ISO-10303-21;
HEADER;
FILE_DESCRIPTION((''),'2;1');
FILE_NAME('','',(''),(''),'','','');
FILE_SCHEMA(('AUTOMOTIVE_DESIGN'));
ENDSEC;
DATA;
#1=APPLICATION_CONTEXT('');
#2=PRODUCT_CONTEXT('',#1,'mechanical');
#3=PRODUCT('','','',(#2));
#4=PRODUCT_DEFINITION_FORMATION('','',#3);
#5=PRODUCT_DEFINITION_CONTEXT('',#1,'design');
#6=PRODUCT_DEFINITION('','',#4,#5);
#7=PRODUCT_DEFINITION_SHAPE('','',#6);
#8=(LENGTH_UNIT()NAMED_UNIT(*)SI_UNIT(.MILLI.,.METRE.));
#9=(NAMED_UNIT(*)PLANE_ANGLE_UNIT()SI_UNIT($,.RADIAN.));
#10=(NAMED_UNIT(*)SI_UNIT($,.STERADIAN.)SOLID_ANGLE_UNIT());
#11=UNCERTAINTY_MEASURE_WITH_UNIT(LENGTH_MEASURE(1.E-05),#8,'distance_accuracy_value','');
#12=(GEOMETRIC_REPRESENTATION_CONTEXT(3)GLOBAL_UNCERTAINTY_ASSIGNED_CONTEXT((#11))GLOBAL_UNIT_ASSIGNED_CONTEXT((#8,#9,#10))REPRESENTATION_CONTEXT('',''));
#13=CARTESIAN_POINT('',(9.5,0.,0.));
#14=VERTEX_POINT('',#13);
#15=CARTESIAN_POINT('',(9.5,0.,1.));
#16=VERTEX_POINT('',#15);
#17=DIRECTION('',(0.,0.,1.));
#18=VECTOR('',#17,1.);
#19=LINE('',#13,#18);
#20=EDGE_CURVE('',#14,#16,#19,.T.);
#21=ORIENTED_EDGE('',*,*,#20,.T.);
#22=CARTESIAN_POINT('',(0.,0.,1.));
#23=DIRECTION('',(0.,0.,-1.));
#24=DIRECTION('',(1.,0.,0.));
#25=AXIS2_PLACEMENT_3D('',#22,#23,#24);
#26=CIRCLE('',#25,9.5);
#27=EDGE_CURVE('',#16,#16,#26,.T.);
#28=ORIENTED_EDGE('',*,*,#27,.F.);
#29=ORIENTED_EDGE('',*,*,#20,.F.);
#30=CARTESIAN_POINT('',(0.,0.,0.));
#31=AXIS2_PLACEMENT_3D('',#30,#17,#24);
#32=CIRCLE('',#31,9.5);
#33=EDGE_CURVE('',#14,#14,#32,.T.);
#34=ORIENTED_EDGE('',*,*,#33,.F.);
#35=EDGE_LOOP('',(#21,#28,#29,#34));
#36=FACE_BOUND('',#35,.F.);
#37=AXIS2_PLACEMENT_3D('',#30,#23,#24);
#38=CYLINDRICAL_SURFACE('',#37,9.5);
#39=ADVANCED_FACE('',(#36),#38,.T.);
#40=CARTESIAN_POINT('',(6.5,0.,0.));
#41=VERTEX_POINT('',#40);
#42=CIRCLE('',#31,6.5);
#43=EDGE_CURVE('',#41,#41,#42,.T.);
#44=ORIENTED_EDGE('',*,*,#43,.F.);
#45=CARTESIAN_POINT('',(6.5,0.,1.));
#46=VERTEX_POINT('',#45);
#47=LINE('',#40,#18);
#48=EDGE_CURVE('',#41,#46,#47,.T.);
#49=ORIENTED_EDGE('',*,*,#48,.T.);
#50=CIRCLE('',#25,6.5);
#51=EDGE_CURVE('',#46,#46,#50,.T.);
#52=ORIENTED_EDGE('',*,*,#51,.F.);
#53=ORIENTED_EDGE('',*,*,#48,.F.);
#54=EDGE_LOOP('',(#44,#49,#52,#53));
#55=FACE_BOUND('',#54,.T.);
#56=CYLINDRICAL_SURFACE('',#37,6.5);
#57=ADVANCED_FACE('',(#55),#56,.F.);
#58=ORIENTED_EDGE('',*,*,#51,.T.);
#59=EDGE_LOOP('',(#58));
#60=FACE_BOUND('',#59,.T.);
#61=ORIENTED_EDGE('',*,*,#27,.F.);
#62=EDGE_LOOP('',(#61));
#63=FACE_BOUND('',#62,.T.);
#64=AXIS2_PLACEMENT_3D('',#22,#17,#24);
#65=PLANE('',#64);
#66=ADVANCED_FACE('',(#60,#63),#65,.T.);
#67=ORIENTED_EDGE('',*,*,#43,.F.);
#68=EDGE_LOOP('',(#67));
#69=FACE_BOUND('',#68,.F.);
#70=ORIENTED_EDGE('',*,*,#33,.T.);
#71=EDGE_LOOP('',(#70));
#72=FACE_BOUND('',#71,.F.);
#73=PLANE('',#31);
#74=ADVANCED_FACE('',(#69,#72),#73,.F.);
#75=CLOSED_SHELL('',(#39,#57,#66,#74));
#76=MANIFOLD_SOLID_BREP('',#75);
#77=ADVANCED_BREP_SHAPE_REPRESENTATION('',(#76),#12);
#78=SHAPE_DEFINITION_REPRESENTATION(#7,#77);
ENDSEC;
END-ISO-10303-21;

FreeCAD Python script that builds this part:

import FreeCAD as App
import Part
import Sketcher

V = App.Vector
Q = App.Units.Quantity

doc = App.newDocument("Part")
body = doc.addObject("PartDesign::Body", "Body")

# Sketch on XY plane
sketch1 = body.newObject("Sketcher::SketchObject", "Sketch")
sketch1.AttachmentSupport = (doc.getObject("XY_Plane"), [""])
sketch1.MapMode = "FlatFace"
sketch1.addGeometry([
    Part.Circle(V(0, 0, 0), V(0, 0, 1), 10),
    Part.Circle(V(0, 0, 0), V(0, 0, 1), 6),
], False)
sketch1.addConstraint([
    Sketcher.Constraint("Coincident", 0, 3, -1, 1),
    Sketcher.Constraint("Coincident", 1, 3, -1, 1),
    Sketcher.Constraint("Diameter", 0, Q("19 mm")),
    Sketcher.Constraint("Diameter", 1, Q("13 mm")),
])
pad1 = body.newObject("PartDesign::Pad", "Pad")
pad1.Profile = sketch1
pad1.Length = 1

doc.recompute()
